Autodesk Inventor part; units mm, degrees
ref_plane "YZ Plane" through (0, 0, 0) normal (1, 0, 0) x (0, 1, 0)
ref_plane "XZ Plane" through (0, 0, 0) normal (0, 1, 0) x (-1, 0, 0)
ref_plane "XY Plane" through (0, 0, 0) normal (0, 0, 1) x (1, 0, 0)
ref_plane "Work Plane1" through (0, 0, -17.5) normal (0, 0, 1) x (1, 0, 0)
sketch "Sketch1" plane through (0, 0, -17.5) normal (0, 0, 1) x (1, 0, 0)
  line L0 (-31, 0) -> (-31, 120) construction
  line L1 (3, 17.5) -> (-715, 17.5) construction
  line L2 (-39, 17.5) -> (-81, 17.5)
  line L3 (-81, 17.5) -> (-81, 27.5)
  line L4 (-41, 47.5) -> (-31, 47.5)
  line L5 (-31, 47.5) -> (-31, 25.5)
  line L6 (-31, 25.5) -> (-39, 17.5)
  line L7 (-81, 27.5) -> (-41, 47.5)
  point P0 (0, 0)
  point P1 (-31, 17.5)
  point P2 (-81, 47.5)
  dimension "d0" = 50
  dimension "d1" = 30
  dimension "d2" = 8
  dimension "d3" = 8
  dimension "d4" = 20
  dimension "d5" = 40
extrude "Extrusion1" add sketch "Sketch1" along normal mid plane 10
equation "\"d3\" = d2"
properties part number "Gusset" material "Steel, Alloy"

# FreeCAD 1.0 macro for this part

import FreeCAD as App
import Part
import Sketcher
Q = App.Units.Quantity

doc = App.newDocument("Part")
body = doc.addObject("PartDesign::Body", "Body")

sketch1 = body.newObject("Sketcher::SketchObject", "Sketch")
sketch1.AttachmentSupport = (doc.getObject("XY_Plane"), [""])
sketch1.MapMode = "FlatFace"
sketch1.AttachmentOffset = App.Placement(App.Vector(0, 0, -17.5), App.Rotation())
sketch1.addGeometry(Part.LineSegment(App.Vector(-81, 18, 0), App.Vector(-39, 18, 0)), False)
sketch1.addGeometry(Part.LineSegment(App.Vector(-39, 18, 0), App.Vector(-31, 26, 0)), False)
sketch1.addGeometry(Part.LineSegment(App.Vector(-31, 26, 0), App.Vector(-31, 48, 0)), False)
sketch1.addGeometry(Part.LineSegment(App.Vector(-31, 48, 0), App.Vector(-41, 48, 0)), False)
sketch1.addGeometry(Part.LineSegment(App.Vector(-41, 48, 0), App.Vector(-81, 28, 0)), False)
sketch1.addGeometry(Part.LineSegment(App.Vector(-81, 28, 0), App.Vector(-81, 18, 0)), False)
sketch1.addConstraint(Sketcher.Constraint("Coincident", 0, 2, 1, 1))
sketch1.addConstraint(Sketcher.Constraint("Coincident", 1, 2, 2, 1))
sketch1.addConstraint(Sketcher.Constraint("Coincident", 2, 2, 3, 1))
sketch1.addConstraint(Sketcher.Constraint("Coincident", 3, 2, 4, 1))
sketch1.addConstraint(Sketcher.Constraint("Coincident", 4, 2, 5, 1))
sketch1.addConstraint(Sketcher.Constraint("Coincident", 5, 2, 0, 1))
sketch1.addConstraint(Sketcher.Constraint("Horizontal", 0))
sketch1.addConstraint(Sketcher.Constraint("Vertical", 2))
sketch1.addConstraint(Sketcher.Constraint("Horizontal", 3))
sketch1.addConstraint(Sketcher.Constraint("Vertical", 5))
sketch1.addConstraint(Sketcher.Constraint("Equal", 3, 5))
sketch1.addConstraint(Sketcher.Constraint("DistanceX", 0, 2, 1, 2, Q("8 mm")))
sketch1.addConstraint(Sketcher.Constraint("DistanceY", 0, 2, 1, 2, Q("8 mm")))
sketch1.addConstraint(Sketcher.Constraint("DistanceY", 0, 2, 2, 2, Q("30 mm")))
sketch1.addConstraint(Sketcher.Constraint("DistanceX", 4, 2, 3, 2, Q("40 mm")))
sketch1.addConstraint(Sketcher.Constraint("DistanceY", 4, 2, 3, 2, Q("20 mm")))
sketch1.addConstraint(Sketcher.Constraint("DistanceX", 0, 2, -1, 1, Q("39 mm")))
sketch1.addConstraint(Sketcher.Constraint("DistanceY", -1, 1, 0, 2, Q("17.5 mm")))
pad1 = body.newObject("PartDesign::Pad", "Pad")
pad1.Profile = sketch1
pad1.Length = 10
pad1.Midplane = True

doc.recompute()
